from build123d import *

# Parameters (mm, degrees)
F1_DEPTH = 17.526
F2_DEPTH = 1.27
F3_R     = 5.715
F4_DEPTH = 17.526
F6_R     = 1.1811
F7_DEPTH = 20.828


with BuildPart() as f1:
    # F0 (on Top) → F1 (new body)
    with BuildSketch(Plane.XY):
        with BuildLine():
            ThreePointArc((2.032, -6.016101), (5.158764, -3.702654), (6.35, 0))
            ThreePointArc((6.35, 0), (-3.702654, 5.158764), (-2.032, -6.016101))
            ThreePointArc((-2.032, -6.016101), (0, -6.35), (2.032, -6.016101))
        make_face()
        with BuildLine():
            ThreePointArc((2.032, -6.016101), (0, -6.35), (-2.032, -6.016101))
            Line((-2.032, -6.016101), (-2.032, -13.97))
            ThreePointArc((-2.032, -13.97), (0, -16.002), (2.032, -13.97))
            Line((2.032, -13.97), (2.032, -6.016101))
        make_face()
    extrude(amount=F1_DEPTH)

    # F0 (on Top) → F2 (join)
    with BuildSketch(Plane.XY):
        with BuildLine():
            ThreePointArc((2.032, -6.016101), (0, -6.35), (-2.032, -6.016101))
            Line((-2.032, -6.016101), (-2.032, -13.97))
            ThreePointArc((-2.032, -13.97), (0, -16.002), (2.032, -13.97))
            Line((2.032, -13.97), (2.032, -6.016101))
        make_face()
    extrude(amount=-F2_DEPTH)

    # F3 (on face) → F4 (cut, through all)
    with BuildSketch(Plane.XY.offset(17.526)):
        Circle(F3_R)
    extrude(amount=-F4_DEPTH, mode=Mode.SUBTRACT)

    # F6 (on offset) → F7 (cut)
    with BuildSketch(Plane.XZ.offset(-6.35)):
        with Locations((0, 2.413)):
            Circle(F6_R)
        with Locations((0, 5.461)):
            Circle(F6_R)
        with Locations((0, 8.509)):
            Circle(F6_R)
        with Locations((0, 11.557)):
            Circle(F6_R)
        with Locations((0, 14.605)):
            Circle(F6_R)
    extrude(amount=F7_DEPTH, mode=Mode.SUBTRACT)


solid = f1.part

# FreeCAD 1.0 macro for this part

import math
import FreeCAD as App
import Part
import Sketcher
from FreeCAD import Vector
Q = App.Units.Quantity

doc = App.newDocument("Part")
body = doc.addObject("PartDesign::Body", "Body")

sketch1 = body.newObject("Sketcher::SketchObject", "Sketch")
sketch1.AttachmentSupport = (doc.getObject("XY_Plane"), [""])
sketch1.MapMode = "FlatFace"
sketch1.addGeometry(Part.ArcOfCircle(Part.Circle(Vector(0, 0, 0), Vector(0, 0, 1), 6.4), math.radians(-71), math.radians(0)), False)
sketch1.addGeometry(Part.ArcOfCircle(Part.Circle(Vector(0, 0, 0), Vector(0, 0, 1), 6.3), math.radians(0), math.radians(251)), False)
sketch1.addGeometry(Part.LineSegment(Vector(-2, -6, 0), Vector(-2, -14, 0)), False)
sketch1.addGeometry(Part.ArcOfCircle(Part.Circle(Vector(0, -14, 0), Vector(0, 0, 1), 2), math.radians(180), math.radians(360)), False)
sketch1.addGeometry(Part.LineSegment(Vector(2, -14, 0), Vector(2, -6, 0)), False)
sketch1.addConstraint(Sketcher.Constraint("Tangent", 0, 2, 1, 1))
sketch1.addConstraint(Sketcher.Constraint("Coincident", 1, 2, 2, 1))
sketch1.addConstraint(Sketcher.Constraint("Tangent", 2, 2, 3, 1))
sketch1.addConstraint(Sketcher.Constraint("Tangent", 3, 2, 4, 1))
sketch1.addConstraint(Sketcher.Constraint("Coincident", 4, 2, 0, 1))
sketch1.addConstraint(Sketcher.Constraint("Vertical", 2))
sketch1.addConstraint(Sketcher.Constraint("Vertical", 4))
sketch1.addConstraint(Sketcher.Constraint("Coincident", 0, 3, -1, 1))
sketch1.addConstraint(Sketcher.Constraint("Equal", 0, 1))
sketch1.addConstraint(Sketcher.Constraint("PointOnObject", 3, 3, -2))
sketch1.addConstraint(Sketcher.Constraint("PointOnObject", 0, 2, -1))
sketch1.addConstraint(Sketcher.Constraint("Radius", 0, Q("0.2500001 in")))
sketch1.addConstraint(Sketcher.Constraint("Radius", 3, Q("0.08 in")))
sketch1.addConstraint(Sketcher.Constraint("DistanceY", 3, 3, -1, 1, Q("0.55 in")))
pad1 = body.newObject("PartDesign::Pad", "Pad")
pad1.Profile = sketch1
pad1.Length = Q("0.69 in")

sketch2 = body.newObject("Sketcher::SketchObject", "Sketch001")
sketch2.AttachmentSupport = (doc.getObject("XY_Plane"), [""])
sketch2.MapMode = "FlatFace"
sketch2.addGeometry(Part.ArcOfCircle(Part.Circle(Vector(0, 0, 0), Vector(0, 0, 1), 6.3), math.radians(-109), math.radians(-71)), False)
sketch2.addGeometry(Part.LineSegment(Vector(-2, -6, 0), Vector(-2, -14, 0)), False)
sketch2.addGeometry(Part.ArcOfCircle(Part.Circle(Vector(0, -14, 0), Vector(0, 0, 1), 2), math.radians(180), math.radians(360)), False)
sketch2.addGeometry(Part.LineSegment(Vector(2, -14, 0), Vector(2, -6, 0)), False)
sketch2.addConstraint(Sketcher.Constraint("Coincident", 0, 1, 1, 1))
sketch2.addConstraint(Sketcher.Constraint("Tangent", 1, 2, 2, 1))
sketch2.addConstraint(Sketcher.Constraint("Tangent", 2, 2, 3, 1))
sketch2.addConstraint(Sketcher.Constraint("Coincident", 3, 2, 0, 2))
sketch2.addConstraint(Sketcher.Constraint("Vertical", 1))
sketch2.addConstraint(Sketcher.Constraint("Vertical", 3))
sketch2.addConstraint(Sketcher.Constraint("Coincident", 0, 3, -1, 1))
sketch2.addConstraint(Sketcher.Constraint("PointOnObject", 2, 3, -2))
sketch2.addConstraint(Sketcher.Constraint("Radius", 2, Q("0.08 in")))
sketch2.addConstraint(Sketcher.Constraint("DistanceY", 2, 3, -1, 1, Q("0.55 in")))
sketch2.addConstraint(Sketcher.Constraint("DistanceY", 1, 2, 1, 1, 7.953899))
pad2 = body.newObject("PartDesign::Pad", "Pad001")
pad2.Profile = sketch2
pad2.Length = Q("0.05 in")
pad2.Reversed = True

sketch3 = body.newObject("Sketcher::SketchObject", "Sketch002")
sketch3.AttachmentSupport = (doc.getObject("XY_Plane"), [""])
sketch3.MapMode = "FlatFace"
sketch3.AttachmentOffset = App.Placement(Vector(0, 0, 0.69 * 25.4), App.Rotation())
sketch3.addGeometry(Part.Circle(Vector(0, 0, 0), Vector(0, 0, 1), 6), False)
sketch3.addConstraint(Sketcher.Constraint("Coincident", 0, 3, -1, 1))
sketch3.addConstraint(Sketcher.Constraint("Diameter", 0, Q("0.45 in")))
pocket1 = body.newObject("PartDesign::Pocket", "Pocket")
pocket1.Profile = sketch3
pocket1.Type = "ThroughAll"

sketch4 = body.newObject("Sketcher::SketchObject", "Sketch003")
sketch4.AttachmentSupport = (doc.getObject("XZ_Plane"), [""])
sketch4.MapMode = "FlatFace"
sketch4.AttachmentOffset = App.Placement(Vector(0, 0, -0.25 * 25.4), App.Rotation())
sketch4.addGeometry(Part.Circle(Vector(0, 2.4, 0), Vector(0, 0, 1), 1.2), False)
sketch4.addGeometry(Part.Circle(Vector(0, 5.5, 0), Vector(0, 0, 1), 1.2), False)
sketch4.addGeometry(Part.Circle(Vector(0, 8.5, 0), Vector(0, 0, 1), 1.2), False)
sketch4.addGeometry(Part.Circle(Vector(0, 11.6, 0), Vector(0, 0, 1), 1.2), False)
sketch4.addGeometry(Part.Circle(Vector(0, 14.6, 0), Vector(0, 0, 1), 1.2), False)
sketch4.addConstraint(Sketcher.Constraint("Equal", 0, 1))
sketch4.addConstraint(Sketcher.Constraint("Equal", 1, 2))
sketch4.addConstraint(Sketcher.Constraint("Equal", 2, 3))
sketch4.addConstraint(Sketcher.Constraint("Equal", 3, 4))
sketch4.addConstraint(Sketcher.Constraint("PointOnObject", 0, 3, -2))
sketch4.addConstraint(Sketcher.Constraint("PointOnObject", 1, 3, -2))
sketch4.addConstraint(Sketcher.Constraint("PointOnObject", 2, 3, -2))
sketch4.addConstraint(Sketcher.Constraint("PointOnObject", 3, 3, -2))
sketch4.addConstraint(Sketcher.Constraint("PointOnObject", 4, 3, -2))
sketch4.addConstraint(Sketcher.Constraint("Diameter", 0, Q("0.093 in")))
sketch4.addConstraint(Sketcher.Constraint("DistanceY", 0, 3, 1, 3, Q("0.12 in")))
sketch4.addConstraint(Sketcher.Constraint("DistanceY", 1, 3, 2, 3, Q("0.12 in")))
sketch4.addConstraint(Sketcher.Constraint("DistanceY", 2, 3, 3, 3, Q("0.12 in")))
sketch4.addConstraint(Sketcher.Constraint("DistanceY", 3, 3, 4, 3, Q("0.12 in")))
sketch4.addConstraint(Sketcher.Constraint("DistanceY", -1, 1, 0, 3, Q("0.095 in")))
pocket2 = body.newObject("PartDesign::Pocket", "Pocket001")
pocket2.Profile = sketch4
pocket2.Length = Q("0.82 in")
pocket2.Reversed = True

doc.recompute()
